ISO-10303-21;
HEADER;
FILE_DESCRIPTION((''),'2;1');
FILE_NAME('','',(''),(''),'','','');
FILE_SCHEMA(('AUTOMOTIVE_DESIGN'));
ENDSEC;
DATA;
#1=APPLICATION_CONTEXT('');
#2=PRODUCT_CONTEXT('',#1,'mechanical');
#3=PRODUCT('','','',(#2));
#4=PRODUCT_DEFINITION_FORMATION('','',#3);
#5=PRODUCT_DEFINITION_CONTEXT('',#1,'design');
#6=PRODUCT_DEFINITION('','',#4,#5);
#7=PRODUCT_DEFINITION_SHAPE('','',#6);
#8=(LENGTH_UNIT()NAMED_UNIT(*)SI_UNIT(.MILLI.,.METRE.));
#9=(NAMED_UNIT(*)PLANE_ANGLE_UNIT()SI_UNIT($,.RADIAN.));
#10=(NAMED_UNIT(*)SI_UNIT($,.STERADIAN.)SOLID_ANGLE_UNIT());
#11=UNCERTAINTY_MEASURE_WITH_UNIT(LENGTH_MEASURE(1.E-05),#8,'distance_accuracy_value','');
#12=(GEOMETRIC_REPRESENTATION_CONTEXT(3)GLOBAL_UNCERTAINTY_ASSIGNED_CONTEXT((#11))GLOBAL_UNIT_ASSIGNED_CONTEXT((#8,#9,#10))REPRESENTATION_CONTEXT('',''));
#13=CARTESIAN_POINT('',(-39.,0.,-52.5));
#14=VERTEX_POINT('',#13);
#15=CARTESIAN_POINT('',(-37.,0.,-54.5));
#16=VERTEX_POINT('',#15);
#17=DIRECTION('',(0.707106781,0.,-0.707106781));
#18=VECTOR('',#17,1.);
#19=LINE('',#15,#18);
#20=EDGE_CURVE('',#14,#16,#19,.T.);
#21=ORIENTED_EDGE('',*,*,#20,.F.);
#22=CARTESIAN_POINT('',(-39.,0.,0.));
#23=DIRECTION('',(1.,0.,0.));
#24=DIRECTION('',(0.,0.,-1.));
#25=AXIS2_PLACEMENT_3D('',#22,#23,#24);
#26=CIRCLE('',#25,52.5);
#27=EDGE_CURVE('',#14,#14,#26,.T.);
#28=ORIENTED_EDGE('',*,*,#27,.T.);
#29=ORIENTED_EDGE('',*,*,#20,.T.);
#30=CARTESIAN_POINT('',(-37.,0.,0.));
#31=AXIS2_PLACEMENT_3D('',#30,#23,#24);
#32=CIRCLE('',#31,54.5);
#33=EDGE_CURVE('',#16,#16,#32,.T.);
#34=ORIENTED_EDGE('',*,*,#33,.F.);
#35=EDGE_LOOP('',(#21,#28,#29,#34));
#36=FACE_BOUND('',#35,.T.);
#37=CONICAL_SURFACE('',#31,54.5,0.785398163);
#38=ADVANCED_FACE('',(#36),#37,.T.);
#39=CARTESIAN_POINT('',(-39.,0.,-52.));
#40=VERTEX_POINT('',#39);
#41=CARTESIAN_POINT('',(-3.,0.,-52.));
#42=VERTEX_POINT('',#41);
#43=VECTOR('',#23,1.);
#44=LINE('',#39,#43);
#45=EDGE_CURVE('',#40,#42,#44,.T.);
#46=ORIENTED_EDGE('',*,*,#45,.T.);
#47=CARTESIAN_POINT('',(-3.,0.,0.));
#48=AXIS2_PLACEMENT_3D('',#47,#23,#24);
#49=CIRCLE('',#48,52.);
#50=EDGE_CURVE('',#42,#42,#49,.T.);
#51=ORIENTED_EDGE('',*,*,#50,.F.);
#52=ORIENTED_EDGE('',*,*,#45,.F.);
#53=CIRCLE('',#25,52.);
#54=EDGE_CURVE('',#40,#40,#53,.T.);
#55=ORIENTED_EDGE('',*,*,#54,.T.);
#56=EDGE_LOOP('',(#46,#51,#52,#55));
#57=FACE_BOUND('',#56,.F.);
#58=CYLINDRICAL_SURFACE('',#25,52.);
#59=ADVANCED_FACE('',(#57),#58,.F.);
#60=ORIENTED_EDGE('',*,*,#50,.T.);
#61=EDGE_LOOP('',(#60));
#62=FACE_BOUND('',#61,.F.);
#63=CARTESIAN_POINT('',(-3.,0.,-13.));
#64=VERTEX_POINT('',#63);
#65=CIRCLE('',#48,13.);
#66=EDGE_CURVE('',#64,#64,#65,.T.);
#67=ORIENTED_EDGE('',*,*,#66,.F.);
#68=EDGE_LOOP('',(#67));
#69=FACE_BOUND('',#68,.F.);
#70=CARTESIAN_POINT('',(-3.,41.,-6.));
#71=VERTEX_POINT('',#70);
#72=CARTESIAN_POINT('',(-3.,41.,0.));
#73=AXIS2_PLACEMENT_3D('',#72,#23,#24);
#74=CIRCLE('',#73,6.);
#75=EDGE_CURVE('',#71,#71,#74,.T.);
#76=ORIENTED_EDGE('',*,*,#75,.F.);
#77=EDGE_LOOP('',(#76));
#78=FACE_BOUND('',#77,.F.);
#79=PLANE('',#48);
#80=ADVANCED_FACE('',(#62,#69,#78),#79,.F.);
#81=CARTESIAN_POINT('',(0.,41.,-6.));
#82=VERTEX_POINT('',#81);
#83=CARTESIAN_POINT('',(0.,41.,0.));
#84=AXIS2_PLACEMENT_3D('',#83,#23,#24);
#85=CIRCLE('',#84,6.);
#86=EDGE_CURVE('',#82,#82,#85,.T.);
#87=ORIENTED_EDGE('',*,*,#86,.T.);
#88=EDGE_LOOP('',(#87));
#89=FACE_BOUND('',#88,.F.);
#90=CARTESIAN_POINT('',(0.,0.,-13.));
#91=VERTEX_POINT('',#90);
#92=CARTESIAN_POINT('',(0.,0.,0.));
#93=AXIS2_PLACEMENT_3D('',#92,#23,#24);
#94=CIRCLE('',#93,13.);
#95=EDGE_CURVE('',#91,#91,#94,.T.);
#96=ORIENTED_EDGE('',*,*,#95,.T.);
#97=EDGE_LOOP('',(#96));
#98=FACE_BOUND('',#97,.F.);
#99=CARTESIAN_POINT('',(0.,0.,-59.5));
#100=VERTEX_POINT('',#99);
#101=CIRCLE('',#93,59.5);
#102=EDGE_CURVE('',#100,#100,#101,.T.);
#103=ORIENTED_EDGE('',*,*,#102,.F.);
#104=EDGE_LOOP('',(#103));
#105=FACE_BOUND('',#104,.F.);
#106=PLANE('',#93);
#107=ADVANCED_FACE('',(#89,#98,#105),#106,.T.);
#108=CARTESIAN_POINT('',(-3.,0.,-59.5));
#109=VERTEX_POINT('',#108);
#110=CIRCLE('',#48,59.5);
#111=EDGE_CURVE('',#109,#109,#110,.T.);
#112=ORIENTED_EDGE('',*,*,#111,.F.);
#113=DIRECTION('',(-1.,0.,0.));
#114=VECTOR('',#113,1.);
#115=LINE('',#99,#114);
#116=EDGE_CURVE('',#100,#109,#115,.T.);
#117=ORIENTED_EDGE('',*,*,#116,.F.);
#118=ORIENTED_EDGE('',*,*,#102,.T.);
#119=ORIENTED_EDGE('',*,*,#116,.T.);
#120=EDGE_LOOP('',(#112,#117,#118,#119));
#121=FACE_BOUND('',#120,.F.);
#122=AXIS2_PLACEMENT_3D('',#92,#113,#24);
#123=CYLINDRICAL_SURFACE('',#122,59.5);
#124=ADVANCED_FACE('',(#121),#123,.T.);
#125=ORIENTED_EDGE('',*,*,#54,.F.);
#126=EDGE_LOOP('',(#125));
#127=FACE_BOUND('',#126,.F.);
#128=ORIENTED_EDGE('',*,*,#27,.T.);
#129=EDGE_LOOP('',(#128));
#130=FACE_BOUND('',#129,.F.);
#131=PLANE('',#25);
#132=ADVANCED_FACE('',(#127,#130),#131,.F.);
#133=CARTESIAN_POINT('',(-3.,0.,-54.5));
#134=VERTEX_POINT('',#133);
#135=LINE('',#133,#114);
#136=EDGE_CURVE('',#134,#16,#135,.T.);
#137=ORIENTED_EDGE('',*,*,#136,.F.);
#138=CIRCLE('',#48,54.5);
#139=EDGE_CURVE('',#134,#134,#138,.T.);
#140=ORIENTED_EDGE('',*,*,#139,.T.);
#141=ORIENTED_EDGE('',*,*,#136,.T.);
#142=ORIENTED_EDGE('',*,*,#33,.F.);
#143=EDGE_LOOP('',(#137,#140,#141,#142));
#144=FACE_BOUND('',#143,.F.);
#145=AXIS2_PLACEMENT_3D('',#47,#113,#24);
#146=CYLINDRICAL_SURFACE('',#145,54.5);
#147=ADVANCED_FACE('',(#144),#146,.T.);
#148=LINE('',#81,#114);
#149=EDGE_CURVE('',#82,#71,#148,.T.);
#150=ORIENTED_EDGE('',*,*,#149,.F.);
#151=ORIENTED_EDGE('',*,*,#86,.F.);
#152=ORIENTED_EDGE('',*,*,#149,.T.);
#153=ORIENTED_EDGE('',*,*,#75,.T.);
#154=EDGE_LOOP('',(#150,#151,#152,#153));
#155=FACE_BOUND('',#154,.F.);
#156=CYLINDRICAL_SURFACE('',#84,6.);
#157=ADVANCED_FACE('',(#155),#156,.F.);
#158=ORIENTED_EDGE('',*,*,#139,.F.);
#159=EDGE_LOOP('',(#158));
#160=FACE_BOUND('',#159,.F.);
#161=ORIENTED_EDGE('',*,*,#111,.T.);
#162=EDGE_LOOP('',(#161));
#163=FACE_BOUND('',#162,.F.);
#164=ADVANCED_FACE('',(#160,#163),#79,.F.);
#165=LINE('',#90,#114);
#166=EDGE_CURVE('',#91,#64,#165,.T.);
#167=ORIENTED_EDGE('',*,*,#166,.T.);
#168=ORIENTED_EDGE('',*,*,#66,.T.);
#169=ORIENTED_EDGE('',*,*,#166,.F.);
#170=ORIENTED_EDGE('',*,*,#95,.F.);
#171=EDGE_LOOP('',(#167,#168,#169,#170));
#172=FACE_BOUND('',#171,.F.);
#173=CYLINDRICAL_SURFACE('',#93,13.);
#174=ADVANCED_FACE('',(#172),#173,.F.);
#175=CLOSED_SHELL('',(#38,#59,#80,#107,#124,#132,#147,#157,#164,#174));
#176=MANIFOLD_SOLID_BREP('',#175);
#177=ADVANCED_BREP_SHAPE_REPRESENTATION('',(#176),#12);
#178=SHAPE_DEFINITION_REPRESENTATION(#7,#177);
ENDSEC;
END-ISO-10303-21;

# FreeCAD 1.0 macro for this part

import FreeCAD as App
import Part
import Sketcher
Q = App.Units.Quantity


def edges_at(feature, points):
    """Names of the edges that pass closest to the given points."""
    edges = feature.Shape.Edges
    near = lambda p: min(range(len(edges)), key=lambda i: edges[i].distToShape(Part.Vertex(*p))[0])
    return sorted({f"Edge{near(p) + 1}" for p in points})

doc = App.newDocument("Part")
body = doc.addObject("PartDesign::Body", "Body")

# Sketch on XZ plane
sketch1 = doc.addObject("Sketcher::SketchObject", "Sketch")
body.addObject(sketch1)
sketch1.AttachmentSupport = (doc.XZ_Plane, [""])
sketch1.MapMode = "FlatFace"
sketch1.addGeometry([
    Part.LineSegment(App.Vector(-3, 0, 0), App.Vector(0, 0, 0)),  # 0
    Part.LineSegment(App.Vector(0, 0, 0), App.Vector(0, -59.5, 0)),  # 1
    Part.LineSegment(App.Vector(0, -59.5, 0), App.Vector(-3, -59.5, 0)),  # 2
    Part.LineSegment(App.Vector(-3, -59.5, 0), App.Vector(-3, -54.5, 0)),  # 3
    Part.LineSegment(App.Vector(-3, -54.5, 0), App.Vector(-39, -54.5, 0)),  # 4
    Part.LineSegment(App.Vector(-39, -54.5, 0), App.Vector(-39, -52, 0)),  # 5
    Part.LineSegment(App.Vector(-39, -52, 0), App.Vector(-3, -52, 0)),  # 6
    Part.LineSegment(App.Vector(-3, -52, 0), App.Vector(-3, 0, 0)),  # 7
], False)
sketch1.addConstraint([
    Sketcher.Constraint("Coincident", 0, 2, 1, 1),
    Sketcher.Constraint("Coincident", 1, 2, 2, 1),
    Sketcher.Constraint("Coincident", 2, 2, 3, 1),
    Sketcher.Constraint("Coincident", 3, 2, 4, 1),
    Sketcher.Constraint("Coincident", 4, 2, 5, 1),
    Sketcher.Constraint("Coincident", 5, 2, 6, 1),
    Sketcher.Constraint("Coincident", 6, 2, 7, 1),
    Sketcher.Constraint("Coincident", 7, 2, 0, 1),
    Sketcher.Constraint("Horizontal", 0),
    Sketcher.Constraint("Vertical", 1),
    Sketcher.Constraint("Horizontal", 2),
    Sketcher.Constraint("Vertical", 3),
    Sketcher.Constraint("Horizontal", 4),
    Sketcher.Constraint("Vertical", 5),
    Sketcher.Constraint("Horizontal", 6),
    Sketcher.Constraint("Vertical", 7),
    Sketcher.Constraint("Coincident", 0, 2, -1, 1),
    Sketcher.Constraint("Vertical", 3, 2, 6, 2),
    Sketcher.Constraint("DistanceX", 0, 1, 0, 2, Q("3 mm")),
    Sketcher.Constraint("DistanceX", 4, 2, 4, 1, Q("36 mm")),
    Sketcher.Constraint("DistanceY", 3, 1, 3, 2, Q("5 mm")),
    Sketcher.Constraint("DistanceY", 7, 1, 7, 2, Q("52 mm")),
    Sketcher.Constraint("DistanceY", 5, 1, 5, 2, Q("2.5 mm")),
])
revolution = doc.addObject("PartDesign::Revolution", "Revolution")
body.addObject(revolution)
revolution.Profile = sketch1
revolution.ReferenceAxis = (sketch1, ["H_Axis"])
revolution.Angle = 360
doc.recompute()

chamfer = doc.addObject("PartDesign::Chamfer", "Chamfer")
body.addObject(chamfer)
chamfer.Base = (revolution, edges_at(revolution, [(-39, 0, 54.5)]))
chamfer.Size = 2

# Sketch on YZ plane
sketch2 = doc.addObject("Sketcher::SketchObject", "Sketch001")
body.addObject(sketch2)
sketch2.AttachmentSupport = (doc.YZ_Plane, [""])
sketch2.MapMode = "FlatFace"
sketch2.addGeometry([
    Part.Circle(App.Vector(0, 0, 0), App.Vector(0, 0, 1), 13),
    Part.Circle(App.Vector(41, 0, 0), App.Vector(0, 0, 1), 6),
], False)
sketch2.addConstraint([
    Sketcher.Constraint("Coincident", 0, 3, -1, 1),
    Sketcher.Constraint("PointOnObject", 1, 3, -1),
    Sketcher.Constraint("Diameter", 0, Q("26 mm")),
    Sketcher.Constraint("Diameter", 1, Q("12 mm")),
    Sketcher.Constraint("DistanceX", -1, 1, 1, 3, Q("41 mm")),
])
pocket1 = doc.addObject("PartDesign::Pocket", "Pocket")
body.addObject(pocket1)
pocket1.Profile = sketch2
pocket1.Length = 10

doc.recompute()
